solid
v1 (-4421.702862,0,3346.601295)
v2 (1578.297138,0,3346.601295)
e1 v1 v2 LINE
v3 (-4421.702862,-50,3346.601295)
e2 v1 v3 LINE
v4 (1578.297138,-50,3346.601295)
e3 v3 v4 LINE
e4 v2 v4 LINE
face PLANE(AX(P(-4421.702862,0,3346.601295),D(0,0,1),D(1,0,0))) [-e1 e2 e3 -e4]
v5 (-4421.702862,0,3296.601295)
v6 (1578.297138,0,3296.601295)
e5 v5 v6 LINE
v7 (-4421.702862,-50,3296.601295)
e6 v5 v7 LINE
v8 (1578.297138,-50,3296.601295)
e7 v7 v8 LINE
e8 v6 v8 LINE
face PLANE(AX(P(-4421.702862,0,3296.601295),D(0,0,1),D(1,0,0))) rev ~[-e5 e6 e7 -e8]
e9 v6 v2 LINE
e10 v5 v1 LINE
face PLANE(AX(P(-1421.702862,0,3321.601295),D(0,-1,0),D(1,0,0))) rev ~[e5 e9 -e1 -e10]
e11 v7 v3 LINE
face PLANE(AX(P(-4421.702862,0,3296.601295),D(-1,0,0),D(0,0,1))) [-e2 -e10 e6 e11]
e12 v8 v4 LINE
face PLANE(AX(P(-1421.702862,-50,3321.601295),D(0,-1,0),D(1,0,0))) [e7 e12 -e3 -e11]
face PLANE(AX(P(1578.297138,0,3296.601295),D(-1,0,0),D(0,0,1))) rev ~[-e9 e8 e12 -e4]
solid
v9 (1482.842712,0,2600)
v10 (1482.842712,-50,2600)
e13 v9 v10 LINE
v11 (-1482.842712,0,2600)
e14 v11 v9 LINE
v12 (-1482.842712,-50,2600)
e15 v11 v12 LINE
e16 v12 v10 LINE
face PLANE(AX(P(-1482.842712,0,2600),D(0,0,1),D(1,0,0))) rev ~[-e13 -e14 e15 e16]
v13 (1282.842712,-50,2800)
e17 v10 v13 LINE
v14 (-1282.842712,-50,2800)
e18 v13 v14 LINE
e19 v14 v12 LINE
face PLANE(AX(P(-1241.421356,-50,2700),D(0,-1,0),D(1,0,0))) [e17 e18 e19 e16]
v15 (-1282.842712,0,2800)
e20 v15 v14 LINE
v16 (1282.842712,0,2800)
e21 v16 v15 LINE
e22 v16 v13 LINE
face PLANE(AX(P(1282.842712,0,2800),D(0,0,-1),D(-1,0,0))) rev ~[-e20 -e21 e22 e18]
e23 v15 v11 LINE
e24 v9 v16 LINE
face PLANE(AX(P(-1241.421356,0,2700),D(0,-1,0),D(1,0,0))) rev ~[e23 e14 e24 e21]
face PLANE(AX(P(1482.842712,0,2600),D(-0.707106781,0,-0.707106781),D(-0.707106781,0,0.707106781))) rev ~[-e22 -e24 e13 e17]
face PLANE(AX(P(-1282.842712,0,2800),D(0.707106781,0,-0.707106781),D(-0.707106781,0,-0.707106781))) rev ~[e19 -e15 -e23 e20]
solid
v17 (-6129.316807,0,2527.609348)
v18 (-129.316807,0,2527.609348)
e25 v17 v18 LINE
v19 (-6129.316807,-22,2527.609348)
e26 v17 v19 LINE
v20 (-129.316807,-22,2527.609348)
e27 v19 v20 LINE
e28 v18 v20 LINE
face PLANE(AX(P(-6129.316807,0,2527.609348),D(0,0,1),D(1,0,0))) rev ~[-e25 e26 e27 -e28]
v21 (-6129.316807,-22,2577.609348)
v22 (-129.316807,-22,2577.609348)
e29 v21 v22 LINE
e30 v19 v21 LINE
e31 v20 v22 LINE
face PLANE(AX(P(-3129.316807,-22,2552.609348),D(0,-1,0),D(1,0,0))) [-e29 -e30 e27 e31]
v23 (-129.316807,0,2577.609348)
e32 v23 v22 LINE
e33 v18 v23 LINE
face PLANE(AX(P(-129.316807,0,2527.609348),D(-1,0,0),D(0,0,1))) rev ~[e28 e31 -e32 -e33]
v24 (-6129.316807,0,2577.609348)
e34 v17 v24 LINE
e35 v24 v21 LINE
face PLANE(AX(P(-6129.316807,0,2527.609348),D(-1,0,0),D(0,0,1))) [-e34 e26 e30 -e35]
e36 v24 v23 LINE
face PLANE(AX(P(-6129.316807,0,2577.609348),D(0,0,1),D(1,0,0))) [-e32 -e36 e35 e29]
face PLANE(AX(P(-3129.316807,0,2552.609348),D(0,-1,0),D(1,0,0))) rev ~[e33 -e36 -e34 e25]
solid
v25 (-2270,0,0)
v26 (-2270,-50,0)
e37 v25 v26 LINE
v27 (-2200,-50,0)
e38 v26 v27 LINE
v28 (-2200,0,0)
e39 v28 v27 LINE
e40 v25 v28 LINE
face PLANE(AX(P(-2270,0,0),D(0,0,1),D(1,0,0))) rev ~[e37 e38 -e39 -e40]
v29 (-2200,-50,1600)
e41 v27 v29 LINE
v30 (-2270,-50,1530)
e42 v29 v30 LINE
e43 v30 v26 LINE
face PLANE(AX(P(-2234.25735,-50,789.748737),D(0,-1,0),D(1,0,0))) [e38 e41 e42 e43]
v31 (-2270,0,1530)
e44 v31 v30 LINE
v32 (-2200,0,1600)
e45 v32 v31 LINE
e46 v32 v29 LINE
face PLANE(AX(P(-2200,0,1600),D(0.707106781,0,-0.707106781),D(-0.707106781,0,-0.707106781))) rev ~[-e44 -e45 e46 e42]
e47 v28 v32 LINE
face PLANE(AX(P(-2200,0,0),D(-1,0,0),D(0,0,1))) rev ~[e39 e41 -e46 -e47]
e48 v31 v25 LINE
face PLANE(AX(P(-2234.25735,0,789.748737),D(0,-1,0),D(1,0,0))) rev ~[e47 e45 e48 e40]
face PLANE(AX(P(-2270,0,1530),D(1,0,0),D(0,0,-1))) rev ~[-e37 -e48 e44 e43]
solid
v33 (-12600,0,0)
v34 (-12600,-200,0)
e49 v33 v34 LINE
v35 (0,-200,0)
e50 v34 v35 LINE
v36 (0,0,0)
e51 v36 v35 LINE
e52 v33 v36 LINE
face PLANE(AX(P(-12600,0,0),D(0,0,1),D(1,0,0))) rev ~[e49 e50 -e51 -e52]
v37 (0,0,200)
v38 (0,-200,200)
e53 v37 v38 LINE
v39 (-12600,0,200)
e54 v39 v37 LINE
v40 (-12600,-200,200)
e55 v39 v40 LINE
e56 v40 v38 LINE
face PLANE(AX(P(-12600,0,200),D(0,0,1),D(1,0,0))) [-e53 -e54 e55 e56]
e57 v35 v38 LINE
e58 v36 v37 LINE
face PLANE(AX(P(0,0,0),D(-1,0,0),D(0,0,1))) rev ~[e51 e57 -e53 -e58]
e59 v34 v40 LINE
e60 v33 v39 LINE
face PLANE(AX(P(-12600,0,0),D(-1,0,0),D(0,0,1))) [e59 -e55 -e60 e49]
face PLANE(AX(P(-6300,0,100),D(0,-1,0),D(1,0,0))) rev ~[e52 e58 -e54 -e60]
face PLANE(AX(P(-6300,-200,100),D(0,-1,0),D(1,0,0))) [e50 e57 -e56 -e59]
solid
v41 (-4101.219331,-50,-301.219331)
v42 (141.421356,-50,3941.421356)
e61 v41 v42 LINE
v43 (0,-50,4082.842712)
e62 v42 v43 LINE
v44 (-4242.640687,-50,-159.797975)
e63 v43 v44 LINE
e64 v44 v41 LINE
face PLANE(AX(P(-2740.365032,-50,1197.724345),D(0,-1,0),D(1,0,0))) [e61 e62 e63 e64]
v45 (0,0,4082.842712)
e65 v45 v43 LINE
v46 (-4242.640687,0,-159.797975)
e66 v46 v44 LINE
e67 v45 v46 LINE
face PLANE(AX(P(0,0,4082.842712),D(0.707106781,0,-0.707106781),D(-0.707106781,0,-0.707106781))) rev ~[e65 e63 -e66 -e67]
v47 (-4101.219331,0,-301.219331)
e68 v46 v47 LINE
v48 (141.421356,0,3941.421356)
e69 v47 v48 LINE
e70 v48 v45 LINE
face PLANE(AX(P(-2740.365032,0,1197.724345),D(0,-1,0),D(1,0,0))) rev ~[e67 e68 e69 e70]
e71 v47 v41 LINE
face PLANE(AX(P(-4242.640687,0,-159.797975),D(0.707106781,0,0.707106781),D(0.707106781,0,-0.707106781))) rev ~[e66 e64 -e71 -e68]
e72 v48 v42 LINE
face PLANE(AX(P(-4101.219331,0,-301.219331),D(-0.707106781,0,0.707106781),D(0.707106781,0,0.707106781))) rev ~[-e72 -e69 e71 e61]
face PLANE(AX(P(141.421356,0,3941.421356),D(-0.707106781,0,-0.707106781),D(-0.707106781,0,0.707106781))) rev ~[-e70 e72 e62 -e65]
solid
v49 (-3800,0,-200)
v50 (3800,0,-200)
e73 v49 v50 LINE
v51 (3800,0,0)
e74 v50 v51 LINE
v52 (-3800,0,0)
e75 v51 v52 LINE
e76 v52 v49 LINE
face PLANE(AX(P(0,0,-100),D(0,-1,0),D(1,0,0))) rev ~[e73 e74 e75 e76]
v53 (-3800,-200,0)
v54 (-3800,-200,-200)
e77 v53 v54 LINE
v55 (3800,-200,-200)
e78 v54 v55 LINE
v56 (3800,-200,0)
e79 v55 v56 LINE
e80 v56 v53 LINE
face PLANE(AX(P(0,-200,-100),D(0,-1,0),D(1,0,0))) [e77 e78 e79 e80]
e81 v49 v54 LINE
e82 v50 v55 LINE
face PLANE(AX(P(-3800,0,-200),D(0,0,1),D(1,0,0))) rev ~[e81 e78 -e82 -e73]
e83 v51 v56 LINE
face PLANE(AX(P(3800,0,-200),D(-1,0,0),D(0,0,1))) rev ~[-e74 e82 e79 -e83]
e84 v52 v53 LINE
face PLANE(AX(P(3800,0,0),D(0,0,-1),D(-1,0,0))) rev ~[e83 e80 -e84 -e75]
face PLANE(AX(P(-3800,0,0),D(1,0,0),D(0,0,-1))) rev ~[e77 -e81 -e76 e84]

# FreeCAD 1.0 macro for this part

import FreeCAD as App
import Part
import Sketcher
Q = App.Units.Quantity

doc = App.newDocument("Part")
body = doc.addObject("PartDesign::Body", "Body")

sketch1 = body.newObject("Sketcher::SketchObject", "Sketch")
sketch1.AttachmentSupport = (doc.getObject("XZ_Plane"), [""])
sketch1.MapMode = "FlatFace"
sketch1.addGeometry(Part.LineSegment(App.Vector(-3800, 0, 0), App.Vector(-3800, -200, 0)), False)
sketch1.addGeometry(Part.LineSegment(App.Vector(-3800, -200, 0), App.Vector(3800, -200, 0)), False)
sketch1.addGeometry(Part.LineSegment(App.Vector(3800, -200, 0), App.Vector(3800, 0, 0)), False)
sketch1.addGeometry(Part.LineSegment(App.Vector(3800, 0, 0), App.Vector(-3800, 0, 0)), False)
sketch1.addConstraint(Sketcher.Constraint("Coincident", 0, 2, 1, 1))
sketch1.addConstraint(Sketcher.Constraint("Coincident", 1, 2, 2, 1))
sketch1.addConstraint(Sketcher.Constraint("Coincident", 2, 2, 3, 1))
sketch1.addConstraint(Sketcher.Constraint("Coincident", 3, 2, 0, 1))
sketch1.addConstraint(Sketcher.Constraint("Vertical", 0))
sketch1.addConstraint(Sketcher.Constraint("Horizontal", 1))
sketch1.addConstraint(Sketcher.Constraint("Vertical", 2))
sketch1.addConstraint(Sketcher.Constraint("Horizontal", 3))
sketch1.addConstraint(Sketcher.Constraint("Symmetric", 2, 2, 3, 2, -1, 1))
sketch1.addConstraint(Sketcher.Constraint("DistanceX", 1, 1, 1, 2, Q("7600 mm")))
sketch1.addConstraint(Sketcher.Constraint("DistanceY", 0, 2, 0, 1, Q("200 mm")))
pad1 = body.newObject("PartDesign::Pad", "Pad")
pad1.Profile = sketch1
pad1.Length = 200
body2 = doc.addObject("PartDesign::Body", "Body001")

sketch2 = body2.newObject("Sketcher::SketchObject", "Sketch001")
sketch2.AttachmentSupport = (doc.getObject("XZ_Plane001"), [""])
sketch2.MapMode = "FlatFace"
sketch2.addGeometry(Part.LineSegment(App.Vector(-2270, 1530, 0), App.Vector(-2270, 0, 0)), False)
sketch2.addGeometry(Part.LineSegment(App.Vector(-2270, 0, 0), App.Vector(-2200, 0, 0)), False)
sketch2.addGeometry(Part.LineSegment(App.Vector(-2200, 0, 0), App.Vector(-2200, 1600, 0)), False)
sketch2.addGeometry(Part.LineSegment(App.Vector(-2200, 1600, 0), App.Vector(-2270, 1530, 0)), False)
sketch2.addConstraint(Sketcher.Constraint("Coincident", 0, 2, 1, 1))
sketch2.addConstraint(Sketcher.Constraint("Coincident", 1, 2, 2, 1))
sketch2.addConstraint(Sketcher.Constraint("Coincident", 2, 2, 3, 1))
sketch2.addConstraint(Sketcher.Constraint("Coincident", 3, 2, 0, 1))
sketch2.addConstraint(Sketcher.Constraint("Vertical", 0))
sketch2.addConstraint(Sketcher.Constraint("Horizontal", 1))
sketch2.addConstraint(Sketcher.Constraint("Vertical", 2))
sketch2.addConstraint(Sketcher.Constraint("PointOnObject", 0, 2, -1))
sketch2.addConstraint(Sketcher.Constraint("DistanceX", 1, 1, 1, 2, Q("70 mm")))
sketch2.addConstraint(Sketcher.Constraint("DistanceY", 0, 2, 0, 1, Q("1530 mm")))
sketch2.addConstraint(Sketcher.Constraint("DistanceY", 2, 1, 2, 2, Q("1600 mm")))
sketch2.addConstraint(Sketcher.Constraint("DistanceX", 0, 2, -1, 1, Q("2270 mm")))
pad2 = body2.newObject("PartDesign::Pad", "Pad001")
pad2.Profile = sketch2
pad2.Length = 50
body3 = doc.addObject("PartDesign::Body", "Body002")

sketch3 = body3.newObject("Sketcher::SketchObject", "Sketch002")
sketch3.AttachmentSupport = (doc.getObject("XZ_Plane002"), [""])
sketch3.MapMode = "FlatFace"
sketch3.addGeometry(Part.LineSegment(App.Vector(-1483, 2600, 0), App.Vector(1483, 2600, 0)), False)
sketch3.addGeometry(Part.LineSegment(App.Vector(1483, 2600, 0), App.Vector(1283, 2800, 0)), False)
sketch3.addGeometry(Part.LineSegment(App.Vector(1283, 2800, 0), App.Vector(-1283, 2800, 0)), False)
sketch3.addGeometry(Part.LineSegment(App.Vector(-1283, 2800, 0), App.Vector(-1483, 2600, 0)), False)
sketch3.addConstraint(Sketcher.Constraint("Coincident", 0, 2, 1, 1))
sketch3.addConstraint(Sketcher.Constraint("Coincident", 1, 2, 2, 1))
sketch3.addConstraint(Sketcher.Constraint("Coincident", 2, 2, 3, 1))
sketch3.addConstraint(Sketcher.Constraint("Coincident", 3, 2, 0, 1))
sketch3.addConstraint(Sketcher.Constraint("Horizontal", 0))
sketch3.addConstraint(Sketcher.Constraint("Horizontal", 2))
sketch3.addConstraint(Sketcher.Constraint("Perpendicular", 1, 3))
sketch3.addConstraint(Sketcher.Constraint("Equal", 1, 3))
sketch3.addConstraint(Sketcher.Constraint("DistanceY", -1, 1, 0, 2, Q("2600 mm")))
sketch3.addConstraint(Sketcher.Constraint("DistanceY", -1, 1, 1, 2, Q("2800 mm")))
sketch3.addConstraint(Sketcher.Constraint("DistanceX", 0, 1, 0, 2, Q("2965.685425 mm")))
sketch3.addConstraint(Sketcher.Constraint("DistanceX", -1, 1, 0, 2, Q("1482.842712 mm")))
pad3 = body3.newObject("PartDesign::Pad", "Pad002")
pad3.Profile = sketch3
pad3.Length = 50
body4 = doc.addObject("PartDesign::Body", "Body003")

sketch4 = body4.newObject("Sketcher::SketchObject", "Sketch003")
sketch4.AttachmentSupport = (doc.getObject("XZ_Plane003"), [""])
sketch4.MapMode = "FlatFace"
sketch4.addGeometry(Part.LineSegment(App.Vector(-4101, -301, 0), App.Vector(141, 3941, 0)), False)
sketch4.addGeometry(Part.LineSegment(App.Vector(141, 3941, 0), App.Vector(0, 4083, 0)), False)
sketch4.addGeometry(Part.LineSegment(App.Vector(0, 4083, 0), App.Vector(-4243, -160, 0)), False)
sketch4.addGeometry(Part.LineSegment(App.Vector(-4243, -160, 0), App.Vector(-4101, -301, 0)), False)
sketch4.addConstraint(Sketcher.Constraint("Coincident", 0, 2, 1, 1))
sketch4.addConstraint(Sketcher.Constraint("Coincident", 1, 2, 2, 1))
sketch4.addConstraint(Sketcher.Constraint("Coincident", 2, 2, 3, 1))
sketch4.addConstraint(Sketcher.Constraint("Coincident", 3, 2, 0, 1))
sketch4.addConstraint(Sketcher.Constraint("PointOnObject", 1, 2, -2))
sketch4.addConstraint(Sketcher.Constraint("Perpendicular", 0, 1))
sketch4.addConstraint(Sketcher.Constraint("Perpendicular", 1, 2))
sketch4.addConstraint(Sketcher.Constraint("Perpendicular", 2, 3))
sketch4.addConstraint(Sketcher.Constraint("Angle", 0, Q("45 deg")))
sketch4.addConstraint(Sketcher.Constraint("Distance", 0, Q("6000 mm")))
sketch4.addConstraint(Sketcher.Constraint("Distance", 1, Q("200 mm")))
sketch4.addConstraint(Sketcher.Constraint("DistanceY", 3, 2, -1, 1, Q("301.219331 mm")))
pad4 = body4.newObject("PartDesign::Pad", "Pad003")
pad4.Profile = sketch4
pad4.Length = 50
body5 = doc.addObject("PartDesign::Body", "Body004")

sketch5 = body5.newObject("Sketcher::SketchObject", "Sketch004")
sketch5.AttachmentSupport = (doc.getObject("XZ_Plane004"), [""])
sketch5.MapMode = "FlatFace"
sketch5.addGeometry(Part.LineSegment(App.Vector(-12600, 200, 0), App.Vector(-12600, 0, 0)), False)
sketch5.addGeometry(Part.LineSegment(App.Vector(-12600, 0, 0), App.Vector(0, 0, 0)), False)
sketch5.addGeometry(Part.LineSegment(App.Vector(0, 0, 0), App.Vector(0, 200, 0)), False)
sketch5.addGeometry(Part.LineSegment(App.Vector(0, 200, 0), App.Vector(-12600, 200, 0)), False)
sketch5.addConstraint(Sketcher.Constraint("Coincident", 0, 2, 1, 1))
sketch5.addConstraint(Sketcher.Constraint("Coincident", 1, 2, 2, 1))
sketch5.addConstraint(Sketcher.Constraint("Coincident", 2, 2, 3, 1))
sketch5.addConstraint(Sketcher.Constraint("Coincident", 3, 2, 0, 1))
sketch5.addConstraint(Sketcher.Constraint("Vertical", 0))
sketch5.addConstraint(Sketcher.Constraint("Horizontal", 1))
sketch5.addConstraint(Sketcher.Constraint("Vertical", 2))
sketch5.addConstraint(Sketcher.Constraint("Horizontal", 3))
sketch5.addConstraint(Sketcher.Constraint("Coincident", 1, 2, -1, 1))
sketch5.addConstraint(Sketcher.Constraint("DistanceX", 1, 1, 1, 2, Q("12600 mm")))
sketch5.addConstraint(Sketcher.Constraint("DistanceY", 0, 2, 0, 1, Q("200 mm")))
pad5 = body5.newObject("PartDesign::Pad", "Pad004")
pad5.Profile = sketch5
pad5.Length = 200
body6 = doc.addObject("PartDesign::Body", "Body005")

sketch6 = body6.newObject("Sketcher::SketchObject", "Sketch005")
sketch6.AttachmentSupport = (doc.getObject("XZ_Plane005"), [""])
sketch6.MapMode = "FlatFace"
sketch6.addGeometry(Part.LineSegment(App.Vector(-6129, 2578, 0), App.Vector(-6129, 2528, 0)), False)
sketch6.addGeometry(Part.LineSegment(App.Vector(-6129, 2528, 0), App.Vector(-129, 2528, 0)), False)
sketch6.addGeometry(Part.LineSegment(App.Vector(-129, 2528, 0), App.Vector(-129, 2578, 0)), False)
sketch6.addGeometry(Part.LineSegment(App.Vector(-129, 2578, 0), App.Vector(-6129, 2578, 0)), False)
sketch6.addConstraint(Sketcher.Constraint("Coincident", 0, 2, 1, 1))
sketch6.addConstraint(Sketcher.Constraint("Coincident", 1, 2, 2, 1))
sketch6.addConstraint(Sketcher.Constraint("Coincident", 2, 2, 3, 1))
sketch6.addConstraint(Sketcher.Constraint("Coincident", 3, 2, 0, 1))
sketch6.addConstraint(Sketcher.Constraint("Vertical", 0))
sketch6.addConstraint(Sketcher.Constraint("Horizontal", 1))
sketch6.addConstraint(Sketcher.Constraint("Vertical", 2))
sketch6.addConstraint(Sketcher.Constraint("Horizontal", 3))
sketch6.addConstraint(Sketcher.Constraint("DistanceX", 1, 1, 1, 2, Q("6000 mm")))
sketch6.addConstraint(Sketcher.Constraint("DistanceY", 0, 2, 0, 1, Q("50 mm")))
sketch6.addConstraint(Sketcher.Constraint("DistanceY", -1, 1, 0, 2, Q("2527.609348 mm")))
sketch6.addConstraint(Sketcher.Constraint("DistanceX", 0, 2, -1, 1, Q("6129.316807 mm")))
pad6 = body6.newObject("PartDesign::Pad", "Pad005")
pad6.Profile = sketch6
pad6.Length = 22
body7 = doc.addObject("PartDesign::Body", "Body006")

sketch7 = body7.newObject("Sketcher::SketchObject", "Sketch006")
sketch7.AttachmentSupport = (doc.getObject("XZ_Plane006"), [""])
sketch7.MapMode = "FlatFace"
sketch7.addGeometry(Part.LineSegment(App.Vector(-4422, 3347, 0), App.Vector(-4422, 3297, 0)), False)
sketch7.addGeometry(Part.LineSegment(App.Vector(-4422, 3297, 0), App.Vector(1578, 3297, 0)), False)
sketch7.addGeometry(Part.LineSegment(App.Vector(1578, 3297, 0), App.Vector(1578, 3347, 0)), False)
sketch7.addGeometry(Part.LineSegment(App.Vector(1578, 3347, 0), App.Vector(-4422, 3347, 0)), False)
sketch7.addConstraint(Sketcher.Constraint("Coincident", 0, 2, 1, 1))
sketch7.addConstraint(Sketcher.Constraint("Coincident", 1, 2, 2, 1))
sketch7.addConstraint(Sketcher.Constraint("Coincident", 2, 2, 3, 1))
sketch7.addConstraint(Sketcher.Constraint("Coincident", 3, 2, 0, 1))
sketch7.addConstraint(Sketcher.Constraint("Vertical", 0))
sketch7.addConstraint(Sketcher.Constraint("Horizontal", 1))
sketch7.addConstraint(Sketcher.Constraint("Vertical", 2))
sketch7.addConstraint(Sketcher.Constraint("Horizontal", 3))
sketch7.addConstraint(Sketcher.Constraint("DistanceX", 1, 1, 1, 2, Q("6000 mm")))
sketch7.addConstraint(Sketcher.Constraint("DistanceY", 0, 2, 0, 1, Q("50 mm")))
sketch7.addConstraint(Sketcher.Constraint("DistanceX", 0, 2, -1, 1, Q("4421.702862 mm")))
sketch7.addConstraint(Sketcher.Constraint("DistanceY", -1, 1, 0, 2, Q("3296.601295 mm")))
pad7 = body7.newObject("PartDesign::Pad", "Pad006")
pad7.Profile = sketch7
pad7.Length = 50

doc.recompute()
